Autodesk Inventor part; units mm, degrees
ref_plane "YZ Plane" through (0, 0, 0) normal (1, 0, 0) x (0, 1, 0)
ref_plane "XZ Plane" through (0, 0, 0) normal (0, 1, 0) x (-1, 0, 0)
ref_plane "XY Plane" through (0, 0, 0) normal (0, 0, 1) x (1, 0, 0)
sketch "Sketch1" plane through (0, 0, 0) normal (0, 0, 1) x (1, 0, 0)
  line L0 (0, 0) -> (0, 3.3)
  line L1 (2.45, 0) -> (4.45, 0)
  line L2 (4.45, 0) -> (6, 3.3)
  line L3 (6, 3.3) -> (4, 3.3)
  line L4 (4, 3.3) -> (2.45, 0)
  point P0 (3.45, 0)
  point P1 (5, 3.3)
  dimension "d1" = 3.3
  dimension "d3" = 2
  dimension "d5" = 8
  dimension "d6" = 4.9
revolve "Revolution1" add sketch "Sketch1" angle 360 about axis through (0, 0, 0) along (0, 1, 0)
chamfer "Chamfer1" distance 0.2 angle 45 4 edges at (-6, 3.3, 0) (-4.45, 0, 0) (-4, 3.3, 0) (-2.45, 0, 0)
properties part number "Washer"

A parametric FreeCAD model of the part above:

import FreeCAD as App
import Part
import Sketcher
from FreeCAD import Vector
Q = App.Units.Quantity


def edges_at(feature, points):
    """Names of the edges that pass closest to the given points."""
    edges = feature.Shape.Edges
    near = lambda p: min(range(len(edges)), key=lambda i: edges[i].distToShape(Part.Vertex(*p))[0])
    return sorted({f"Edge{near(p) + 1}" for p in points})


def add_polygon(sketch, points):
    """Adds a closed chain of lines whose ends are joined by coincident constraints."""
    first, n = sketch.GeometryCount, len(points)
    for a, b in zip(points, points[1:] + points[:1]):
        sketch.addGeometry(Part.LineSegment(App.Vector(*a, 0), App.Vector(*b, 0)), False)
    for i in range(n):
        sketch.addConstraint(Sketcher.Constraint("Coincident", first + i, 2, first + (i + 1) % n, 1))

doc = App.newDocument("Part")
body = doc.addObject("PartDesign::Body", "Body")

sketch1 = body.newObject("Sketcher::SketchObject", "Sketch")
sketch1.AttachmentSupport = (doc.getObject("XY_Plane"), [""])
sketch1.MapMode = "FlatFace"
add_polygon(sketch1, [(4, 3.3), (2.5, 0), (4.5, 0), (6, 3.3)])
sketch1.addConstraint([
    Sketcher.Constraint("Horizontal", 1),
    Sketcher.Constraint("Horizontal", 3),
    Sketcher.Constraint("PointOnObject", 0, 2, -1),
    Sketcher.Constraint("Parallel", 0, 2),
    Sketcher.Constraint("DistanceX", 1, 1, 1, 2, Q("2 mm")),
    Sketcher.Constraint("DistanceY", -1, 1, 2, 2, Q("3.3 mm")),
    Sketcher.Constraint("DistanceX", -1, 1, 2, 2, Q("6 mm")),
    Sketcher.Constraint("Angle", 0, Q("-115.1593 deg")),
])
revolution = body.newObject("PartDesign::Revolution", "Revolution")
revolution.Profile = sketch1
revolution.ReferenceAxis = (sketch1, ["V_Axis"])
revolution.Angle = 360
doc.recompute()

chamfer = body.newObject("PartDesign::Chamfer", "Chamfer")
chamfer.Base = (revolution, edges_at(revolution, [
    (-6, 3.3, 0),
    (-4.45, 0, 0),
    (-4, 3.3, 0),
    (-2.45, 0, 0),
]))
chamfer.Size = 0.2

doc.recompute()
